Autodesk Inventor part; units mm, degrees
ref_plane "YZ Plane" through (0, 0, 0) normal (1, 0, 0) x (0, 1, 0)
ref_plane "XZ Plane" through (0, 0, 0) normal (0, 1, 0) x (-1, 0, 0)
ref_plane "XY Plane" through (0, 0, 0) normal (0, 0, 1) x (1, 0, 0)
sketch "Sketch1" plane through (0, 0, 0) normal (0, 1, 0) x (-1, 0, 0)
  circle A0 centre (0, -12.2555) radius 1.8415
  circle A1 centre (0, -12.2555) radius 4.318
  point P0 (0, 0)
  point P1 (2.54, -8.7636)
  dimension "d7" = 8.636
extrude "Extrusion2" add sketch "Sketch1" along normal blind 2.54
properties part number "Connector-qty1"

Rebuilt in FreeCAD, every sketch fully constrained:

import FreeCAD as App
import Part
import Sketcher
Q = App.Units.Quantity

doc = App.newDocument("Part")
body = doc.addObject("PartDesign::Body", "Body")

sketch1 = doc.addObject("Sketcher::SketchObject", "Sketch")
body.addObject(sketch1)
sketch1.AttachmentSupport = (doc.XZ_Plane, [""])
sketch1.MapMode = "FlatFace"
sketch1.addGeometry([
    Part.Circle(App.Vector(0, -12.3, 0), App.Vector(0, 0, 1), 4.3),
    Part.Circle(App.Vector(0, -12.3, 0), App.Vector(0, 0, 1), 1.8),
], False)
sketch1.addConstraint([
    Sketcher.Constraint("Coincident", 1, 3, 0, 3),
    Sketcher.Constraint("PointOnObject", 0, 3, -2),
    Sketcher.Constraint("Diameter", 0, Q("0.34 in")),
    Sketcher.Constraint("Diameter", 1, Q("0.145 in")),
    Sketcher.Constraint("DistanceY", 0, 3, -1, 1, Q("0.4825 in")),
])
pad1 = doc.addObject("PartDesign::Pad", "Pad")
body.addObject(pad1)
pad1.Profile = sketch1
pad1.Length = Q("0.1 in")
pad1.Reversed = True

doc.recompute()
